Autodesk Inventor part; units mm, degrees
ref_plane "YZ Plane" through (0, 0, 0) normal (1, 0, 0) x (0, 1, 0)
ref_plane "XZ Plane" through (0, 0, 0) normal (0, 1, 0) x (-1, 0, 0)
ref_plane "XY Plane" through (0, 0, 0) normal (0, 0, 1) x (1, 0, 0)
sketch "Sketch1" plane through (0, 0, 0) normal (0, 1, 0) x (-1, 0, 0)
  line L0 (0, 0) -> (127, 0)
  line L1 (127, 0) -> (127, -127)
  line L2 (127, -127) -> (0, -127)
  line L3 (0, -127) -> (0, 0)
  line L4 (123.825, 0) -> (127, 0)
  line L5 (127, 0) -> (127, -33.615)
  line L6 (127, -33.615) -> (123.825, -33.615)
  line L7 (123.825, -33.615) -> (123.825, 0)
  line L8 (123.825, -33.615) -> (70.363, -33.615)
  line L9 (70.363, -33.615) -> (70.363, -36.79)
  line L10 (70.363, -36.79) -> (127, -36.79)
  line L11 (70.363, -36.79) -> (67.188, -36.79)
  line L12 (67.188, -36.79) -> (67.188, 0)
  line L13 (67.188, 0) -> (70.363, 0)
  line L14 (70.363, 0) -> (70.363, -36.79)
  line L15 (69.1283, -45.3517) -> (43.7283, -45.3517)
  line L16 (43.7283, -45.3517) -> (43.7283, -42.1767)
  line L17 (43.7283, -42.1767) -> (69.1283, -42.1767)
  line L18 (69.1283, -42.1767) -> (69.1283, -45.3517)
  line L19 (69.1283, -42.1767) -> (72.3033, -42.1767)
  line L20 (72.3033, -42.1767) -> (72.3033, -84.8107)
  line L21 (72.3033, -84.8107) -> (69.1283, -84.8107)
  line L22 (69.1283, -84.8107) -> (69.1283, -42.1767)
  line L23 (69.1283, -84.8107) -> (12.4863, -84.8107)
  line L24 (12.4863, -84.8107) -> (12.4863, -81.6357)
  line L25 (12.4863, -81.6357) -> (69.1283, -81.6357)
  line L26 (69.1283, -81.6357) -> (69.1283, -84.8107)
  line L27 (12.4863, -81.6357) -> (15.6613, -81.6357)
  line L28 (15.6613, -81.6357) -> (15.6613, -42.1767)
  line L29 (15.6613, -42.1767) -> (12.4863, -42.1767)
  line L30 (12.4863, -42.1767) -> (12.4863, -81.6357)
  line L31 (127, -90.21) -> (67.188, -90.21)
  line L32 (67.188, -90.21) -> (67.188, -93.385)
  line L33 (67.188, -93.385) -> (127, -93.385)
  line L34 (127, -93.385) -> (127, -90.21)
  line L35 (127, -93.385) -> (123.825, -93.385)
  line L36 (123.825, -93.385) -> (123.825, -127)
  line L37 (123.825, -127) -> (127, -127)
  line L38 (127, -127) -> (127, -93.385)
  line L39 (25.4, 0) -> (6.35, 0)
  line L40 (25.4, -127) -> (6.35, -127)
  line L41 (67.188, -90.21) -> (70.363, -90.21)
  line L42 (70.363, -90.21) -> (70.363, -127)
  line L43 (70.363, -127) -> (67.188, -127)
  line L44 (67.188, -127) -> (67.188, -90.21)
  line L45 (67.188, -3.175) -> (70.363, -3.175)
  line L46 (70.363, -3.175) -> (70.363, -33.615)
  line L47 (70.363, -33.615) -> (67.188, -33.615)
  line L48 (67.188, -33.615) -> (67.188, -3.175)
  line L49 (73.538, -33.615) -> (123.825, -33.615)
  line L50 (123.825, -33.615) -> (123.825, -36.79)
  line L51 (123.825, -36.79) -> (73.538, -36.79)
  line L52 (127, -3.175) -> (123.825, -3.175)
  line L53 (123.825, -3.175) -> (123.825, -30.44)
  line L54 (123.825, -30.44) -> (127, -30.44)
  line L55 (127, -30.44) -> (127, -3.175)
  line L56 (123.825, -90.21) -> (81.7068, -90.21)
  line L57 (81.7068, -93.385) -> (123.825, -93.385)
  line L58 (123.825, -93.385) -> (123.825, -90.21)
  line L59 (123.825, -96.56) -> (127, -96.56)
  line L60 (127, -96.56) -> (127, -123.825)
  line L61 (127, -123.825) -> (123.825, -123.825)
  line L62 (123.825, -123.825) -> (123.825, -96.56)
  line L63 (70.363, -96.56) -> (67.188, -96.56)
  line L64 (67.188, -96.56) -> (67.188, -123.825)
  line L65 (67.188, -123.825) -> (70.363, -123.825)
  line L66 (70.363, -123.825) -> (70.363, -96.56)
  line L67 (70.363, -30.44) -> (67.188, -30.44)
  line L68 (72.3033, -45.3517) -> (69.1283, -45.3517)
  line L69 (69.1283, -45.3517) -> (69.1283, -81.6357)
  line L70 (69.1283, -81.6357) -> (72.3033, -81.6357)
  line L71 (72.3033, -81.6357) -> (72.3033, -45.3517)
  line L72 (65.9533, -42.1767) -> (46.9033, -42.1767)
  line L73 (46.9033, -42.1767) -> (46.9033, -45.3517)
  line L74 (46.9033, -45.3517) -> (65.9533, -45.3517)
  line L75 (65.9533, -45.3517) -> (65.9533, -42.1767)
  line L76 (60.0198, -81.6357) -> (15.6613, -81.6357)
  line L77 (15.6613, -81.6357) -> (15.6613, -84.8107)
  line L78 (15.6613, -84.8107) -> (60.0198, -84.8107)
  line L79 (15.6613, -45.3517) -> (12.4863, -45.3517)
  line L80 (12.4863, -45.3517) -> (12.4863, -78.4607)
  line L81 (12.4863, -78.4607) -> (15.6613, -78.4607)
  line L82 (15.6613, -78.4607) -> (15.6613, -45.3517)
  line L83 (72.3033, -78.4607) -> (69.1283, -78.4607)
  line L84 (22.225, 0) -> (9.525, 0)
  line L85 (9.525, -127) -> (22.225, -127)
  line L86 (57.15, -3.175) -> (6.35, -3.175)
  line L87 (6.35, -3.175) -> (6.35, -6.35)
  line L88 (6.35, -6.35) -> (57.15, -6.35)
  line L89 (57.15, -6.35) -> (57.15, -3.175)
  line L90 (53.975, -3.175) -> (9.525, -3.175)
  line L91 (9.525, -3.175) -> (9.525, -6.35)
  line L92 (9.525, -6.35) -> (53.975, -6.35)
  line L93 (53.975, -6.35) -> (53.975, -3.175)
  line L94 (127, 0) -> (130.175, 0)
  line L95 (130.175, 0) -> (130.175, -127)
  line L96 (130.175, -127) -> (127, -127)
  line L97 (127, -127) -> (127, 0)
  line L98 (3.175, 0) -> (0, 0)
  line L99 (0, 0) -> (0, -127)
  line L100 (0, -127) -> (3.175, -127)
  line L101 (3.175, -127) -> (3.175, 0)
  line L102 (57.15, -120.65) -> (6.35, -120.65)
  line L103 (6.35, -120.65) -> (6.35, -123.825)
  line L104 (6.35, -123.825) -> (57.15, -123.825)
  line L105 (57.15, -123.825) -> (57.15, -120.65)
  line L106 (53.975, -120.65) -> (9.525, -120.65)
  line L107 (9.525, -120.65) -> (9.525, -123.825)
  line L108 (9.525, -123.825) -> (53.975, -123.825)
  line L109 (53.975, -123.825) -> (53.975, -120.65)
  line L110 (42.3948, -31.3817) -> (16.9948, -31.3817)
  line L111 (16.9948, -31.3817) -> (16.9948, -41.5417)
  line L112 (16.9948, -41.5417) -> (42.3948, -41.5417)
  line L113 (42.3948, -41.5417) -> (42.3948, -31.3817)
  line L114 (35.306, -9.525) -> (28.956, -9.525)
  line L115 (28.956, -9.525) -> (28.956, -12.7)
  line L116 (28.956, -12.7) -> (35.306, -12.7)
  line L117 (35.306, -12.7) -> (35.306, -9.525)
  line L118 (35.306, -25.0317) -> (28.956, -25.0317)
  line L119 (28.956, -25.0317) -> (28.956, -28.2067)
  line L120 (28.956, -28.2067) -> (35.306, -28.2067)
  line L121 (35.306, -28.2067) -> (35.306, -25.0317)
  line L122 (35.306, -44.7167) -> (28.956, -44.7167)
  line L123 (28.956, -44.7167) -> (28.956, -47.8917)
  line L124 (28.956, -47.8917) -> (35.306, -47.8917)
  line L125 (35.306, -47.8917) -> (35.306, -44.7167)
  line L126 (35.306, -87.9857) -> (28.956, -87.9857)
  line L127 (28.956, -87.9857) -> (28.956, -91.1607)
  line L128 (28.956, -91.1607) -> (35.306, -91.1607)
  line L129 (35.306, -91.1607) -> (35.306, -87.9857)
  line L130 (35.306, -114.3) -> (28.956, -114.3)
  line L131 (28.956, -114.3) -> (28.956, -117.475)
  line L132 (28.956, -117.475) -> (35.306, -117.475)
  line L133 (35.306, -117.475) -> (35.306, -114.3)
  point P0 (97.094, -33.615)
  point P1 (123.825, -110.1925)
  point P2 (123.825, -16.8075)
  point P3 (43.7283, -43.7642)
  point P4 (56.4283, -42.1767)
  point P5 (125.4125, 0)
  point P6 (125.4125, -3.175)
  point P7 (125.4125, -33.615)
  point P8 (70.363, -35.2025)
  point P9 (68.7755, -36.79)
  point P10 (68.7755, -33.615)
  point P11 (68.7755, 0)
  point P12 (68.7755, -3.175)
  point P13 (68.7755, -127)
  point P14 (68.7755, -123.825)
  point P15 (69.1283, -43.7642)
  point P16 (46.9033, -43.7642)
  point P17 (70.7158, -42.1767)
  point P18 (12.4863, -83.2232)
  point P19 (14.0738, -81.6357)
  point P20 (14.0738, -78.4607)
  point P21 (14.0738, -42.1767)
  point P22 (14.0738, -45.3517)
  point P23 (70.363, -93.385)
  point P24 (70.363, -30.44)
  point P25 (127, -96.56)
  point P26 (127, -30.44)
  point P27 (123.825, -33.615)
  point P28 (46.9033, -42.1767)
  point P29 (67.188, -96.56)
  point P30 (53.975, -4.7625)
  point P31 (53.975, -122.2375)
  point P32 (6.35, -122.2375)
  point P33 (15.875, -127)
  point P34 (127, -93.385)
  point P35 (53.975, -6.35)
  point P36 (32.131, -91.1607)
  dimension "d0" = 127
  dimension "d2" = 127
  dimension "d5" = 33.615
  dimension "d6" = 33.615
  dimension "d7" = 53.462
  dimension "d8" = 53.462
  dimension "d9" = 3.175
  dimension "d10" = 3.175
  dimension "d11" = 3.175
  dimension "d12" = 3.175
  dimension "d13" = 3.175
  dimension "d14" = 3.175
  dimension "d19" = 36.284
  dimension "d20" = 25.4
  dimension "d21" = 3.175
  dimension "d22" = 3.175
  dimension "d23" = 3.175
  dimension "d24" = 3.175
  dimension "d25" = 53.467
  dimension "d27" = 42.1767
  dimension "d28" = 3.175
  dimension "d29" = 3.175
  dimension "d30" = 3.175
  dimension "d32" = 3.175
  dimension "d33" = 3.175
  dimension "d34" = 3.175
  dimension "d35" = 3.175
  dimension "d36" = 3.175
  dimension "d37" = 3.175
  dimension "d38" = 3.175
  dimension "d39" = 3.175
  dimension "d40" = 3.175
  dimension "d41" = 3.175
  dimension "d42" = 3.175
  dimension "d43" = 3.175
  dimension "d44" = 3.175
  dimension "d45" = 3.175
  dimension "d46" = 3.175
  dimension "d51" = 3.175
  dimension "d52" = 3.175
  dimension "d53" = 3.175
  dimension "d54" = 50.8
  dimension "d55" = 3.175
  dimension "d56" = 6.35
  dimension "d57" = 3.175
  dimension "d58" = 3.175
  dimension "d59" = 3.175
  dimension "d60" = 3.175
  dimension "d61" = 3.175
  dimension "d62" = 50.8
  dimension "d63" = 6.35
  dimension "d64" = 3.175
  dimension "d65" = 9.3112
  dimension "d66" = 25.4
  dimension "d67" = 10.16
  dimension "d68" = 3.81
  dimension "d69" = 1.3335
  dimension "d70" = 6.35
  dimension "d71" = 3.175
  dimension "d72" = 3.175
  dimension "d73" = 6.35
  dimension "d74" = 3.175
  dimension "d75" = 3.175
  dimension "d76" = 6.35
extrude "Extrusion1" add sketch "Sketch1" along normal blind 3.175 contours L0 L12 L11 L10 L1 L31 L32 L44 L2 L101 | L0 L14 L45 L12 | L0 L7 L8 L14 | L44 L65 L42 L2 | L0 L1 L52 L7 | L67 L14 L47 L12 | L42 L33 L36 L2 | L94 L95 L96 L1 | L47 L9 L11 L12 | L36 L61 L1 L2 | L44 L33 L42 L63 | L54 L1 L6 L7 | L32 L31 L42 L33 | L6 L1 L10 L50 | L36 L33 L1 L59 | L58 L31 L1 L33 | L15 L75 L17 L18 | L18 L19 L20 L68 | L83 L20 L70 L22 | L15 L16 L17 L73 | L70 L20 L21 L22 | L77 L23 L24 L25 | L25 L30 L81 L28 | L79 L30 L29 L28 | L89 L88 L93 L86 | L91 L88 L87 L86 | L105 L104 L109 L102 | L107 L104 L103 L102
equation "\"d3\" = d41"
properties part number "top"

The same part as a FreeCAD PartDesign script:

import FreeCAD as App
import Part
import Sketcher

V = App.Vector
Q = App.Units.Quantity


def add_polygon(sketch, points):
    """Adds a closed chain of lines whose ends are joined by coincident constraints."""
    first, n = sketch.GeometryCount, len(points)
    for a, b in zip(points, points[1:] + points[:1]):
        sketch.addGeometry(Part.LineSegment(App.Vector(*a, 0), App.Vector(*b, 0)), False)
    for i in range(n):
        sketch.addConstraint(Sketcher.Constraint("Coincident", first + i, 2, first + (i + 1) % n, 1))

doc = App.newDocument("Part")
body = doc.addObject("PartDesign::Body", "Body")

# Sketch on XZ plane
sketch1 = body.newObject("Sketcher::SketchObject", "Sketch")
sketch1.AttachmentSupport = (doc.getObject("XZ_Plane"), [""])
sketch1.MapMode = "FlatFace"
add_polygon(sketch1, [(-3.175, 0), (-3.175, -127), (-130.175, -127), (-130.175, 0)])  # lines 0-3
add_polygon(sketch1, [(-67.188, -30.44), (-67.188, -3.175), (-70.363, -3.175), (-70.363, -30.44)])  # lines 4-7
add_polygon(sketch1, [(-70.363, -36.79), (-70.363, -33.615), (-123.825, -33.615), (-123.825, -36.79)])  # lines 8-11
add_polygon(sketch1, [(-123.825, -90.21), (-123.825, -93.385), (-70.363, -93.385), (-70.363, -90.21)])  # lines 12-15
add_polygon(sketch1, [(-67.188, -123.825), (-67.188, -96.56), (-70.363, -96.56), (-70.363, -123.825)])  # lines 16-19
add_polygon(sketch1, [(-9.525, -120.65), (-53.975, -120.65), (-53.975, -123.825), (-9.525, -123.825)])  # lines 20-23
add_polygon(sketch1, [(-28.956, -114.3), (-35.306, -114.3), (-35.306, -117.475), (-28.956, -117.475)])  # lines 24-27
add_polygon(sketch1, [(-28.956, -87.9857), (-35.306, -87.9857), (-35.306, -91.1607), (-28.956, -91.1607)])  # lines 28-31
add_polygon(sketch1, [(-28.956, -44.7167), (-35.306, -44.7167), (-35.306, -47.8917), (-28.956, -47.8917)])  # lines 32-35
add_polygon(sketch1, [(-16.9948, -31.3817), (-42.3948, -31.3817), (-42.3948, -41.5417), (-16.9948, -41.5417)])  # lines 36-39
add_polygon(sketch1, [(-69.1283, -78.4607), (-69.1283, -45.3517), (-72.3033, -45.3517), (-72.3033, -78.4607)])  # lines 40-43
add_polygon(sketch1, [(-69.1283, -81.6357), (-69.1283, -84.8107), (-15.6613, -84.8107), (-15.6613, -81.6357)])  # lines 44-47
add_polygon(sketch1, [(-15.6613, -45.3517), (-15.6613, -78.4607), (-12.4863, -78.4607), (-12.4863, -45.3517)])  # lines 48-51
add_polygon(sketch1, [(-46.9033, -42.1767), (-65.9533, -42.1767), (-65.9533, -45.3517), (-46.9033, -45.3517)])  # lines 52-55
add_polygon(sketch1, [(-28.956, -25.0317), (-35.306, -25.0317), (-35.306, -28.2067), (-28.956, -28.2067)])  # lines 56-59
add_polygon(sketch1, [(-28.956, -9.525), (-35.306, -9.525), (-35.306, -12.7), (-28.956, -12.7)])  # lines 60-63
add_polygon(sketch1, [(-9.525, -3.175), (-53.975, -3.175), (-53.975, -6.35), (-9.525, -6.35)])  # lines 64-67
add_polygon(sketch1, [(-127, -96.56), (-127, -123.825), (-123.825, -123.825), (-123.825, -96.56)])  # lines 68-71
add_polygon(sketch1, [(-127, -3.175), (-127, -30.44), (-123.825, -30.44), (-123.825, -3.175)])  # lines 72-75
sketch1.addConstraint([
    Sketcher.Constraint("Vertical", 0),
    Sketcher.Constraint("Horizontal", 1),
    Sketcher.Constraint("Vertical", 2),
    Sketcher.Constraint("Horizontal", 3),
    Sketcher.Constraint("Vertical", 4),
    Sketcher.Constraint("Horizontal", 5),
    Sketcher.Constraint("Vertical", 6),
    Sketcher.Constraint("Horizontal", 7),
    Sketcher.Constraint("Vertical", 8),
    Sketcher.Constraint("Horizontal", 9),
    Sketcher.Constraint("Vertical", 10),
    Sketcher.Constraint("Horizontal", 11),
    Sketcher.Constraint("Vertical", 12),
    Sketcher.Constraint("Horizontal", 13),
    Sketcher.Constraint("Vertical", 14),
    Sketcher.Constraint("Horizontal", 15),
    Sketcher.Constraint("Vertical", 16),
    Sketcher.Constraint("Horizontal", 17),
    Sketcher.Constraint("Vertical", 18),
    Sketcher.Constraint("Horizontal", 19),
    Sketcher.Constraint("Horizontal", 20),
    Sketcher.Constraint("Vertical", 21),
    Sketcher.Constraint("Horizontal", 22),
    Sketcher.Constraint("Vertical", 23),
    Sketcher.Constraint("Horizontal", 24),
    Sketcher.Constraint("Vertical", 25),
    Sketcher.Constraint("Horizontal", 26),
    Sketcher.Constraint("Vertical", 27),
    Sketcher.Constraint("Horizontal", 28),
    Sketcher.Constraint("Vertical", 29),
    Sketcher.Constraint("Horizontal", 30),
    Sketcher.Constraint("Vertical", 31),
    Sketcher.Constraint("Horizontal", 32),
    Sketcher.Constraint("Vertical", 33),
    Sketcher.Constraint("Horizontal", 34),
    Sketcher.Constraint("Vertical", 35),
    Sketcher.Constraint("Horizontal", 36),
    Sketcher.Constraint("Vertical", 37),
    Sketcher.Constraint("Horizontal", 38),
    Sketcher.Constraint("Vertical", 39),
    Sketcher.Constraint("Vertical", 40),
    Sketcher.Constraint("Horizontal", 41),
    Sketcher.Constraint("Vertical", 42),
    Sketcher.Constraint("Horizontal", 43),
    Sketcher.Constraint("Vertical", 44),
    Sketcher.Constraint("Horizontal", 45),
    Sketcher.Constraint("Vertical", 46),
    Sketcher.Constraint("Horizontal", 47),
    Sketcher.Constraint("Vertical", 48),
    Sketcher.Constraint("Horizontal", 49),
    Sketcher.Constraint("Vertical", 50),
    Sketcher.Constraint("Horizontal", 51),
    Sketcher.Constraint("Horizontal", 52),
    Sketcher.Constraint("Vertical", 53),
    Sketcher.Constraint("Horizontal", 54),
    Sketcher.Constraint("Vertical", 55),
    Sketcher.Constraint("Horizontal", 56),
    Sketcher.Constraint("Vertical", 57),
    Sketcher.Constraint("Horizontal", 58),
    Sketcher.Constraint("Vertical", 59),
    Sketcher.Constraint("Horizontal", 60),
    Sketcher.Constraint("Vertical", 61),
    Sketcher.Constraint("Horizontal", 62),
    Sketcher.Constraint("Vertical", 63),
    Sketcher.Constraint("Horizontal", 64),
    Sketcher.Constraint("Vertical", 65),
    Sketcher.Constraint("Horizontal", 66),
    Sketcher.Constraint("Vertical", 67),
    Sketcher.Constraint("Vertical", 68),
    Sketcher.Constraint("Horizontal", 69),
    Sketcher.Constraint("Vertical", 70),
    Sketcher.Constraint("Horizontal", 71),
    Sketcher.Constraint("Vertical", 72),
    Sketcher.Constraint("Horizontal", 73),
    Sketcher.Constraint("Vertical", 74),
    Sketcher.Constraint("Horizontal", 75),
    Sketcher.Constraint("PointOnObject", 2, 2, -1),
    Sketcher.Constraint("Horizontal", 19, 2, 21, 2),
    Sketcher.Constraint("Horizontal", 43, 2, 48, 2),
    Sketcher.Constraint("Horizontal", 41, 2, 50, 2),
    Sketcher.Constraint("Horizontal", 51, 2, 53, 2),
    Sketcher.Constraint("Horizontal", 5, 2, 64, 2),
    Sketcher.Constraint("Horizontal", 22, 2, 68, 2),
    Sketcher.Constraint("Horizontal", 17, 2, 70, 2),
    Sketcher.Constraint("Horizontal", 7, 2, 72, 2),
    Sketcher.Constraint("Horizontal", 67, 2, 74, 2),
    Sketcher.Constraint("Vertical", 6, 2, 8, 2),
    Sketcher.Constraint("Vertical", 10, 2, 12, 2),
    Sketcher.Constraint("Vertical", 11, 2, 13, 2),
    Sketcher.Constraint("Vertical", 7, 2, 16, 2),
    Sketcher.Constraint("Vertical", 14, 2, 17, 2),
    Sketcher.Constraint("Vertical", 25, 2, 28, 2),
    Sketcher.Constraint("Vertical", 27, 2, 30, 2),
    Sketcher.Constraint("Vertical", 29, 2, 32, 2),
    Sketcher.Constraint("Vertical", 31, 2, 34, 2),
    Sketcher.Constraint("Vertical", 43, 2, 44, 2),
    Sketcher.Constraint("Vertical", 46, 2, 48, 2),
    Sketcher.Constraint("Vertical", 33, 2, 56, 2),
    Sketcher.Constraint("Vertical", 35, 2, 58, 2),
    Sketcher.Constraint("Vertical", 57, 2, 60, 2),
    Sketcher.Constraint("Vertical", 59, 2, 62, 2),
    Sketcher.Constraint("Vertical", 21, 2, 64, 2),
    Sketcher.Constraint("Vertical", 23, 2, 66, 2),
    Sketcher.Constraint("Vertical", 15, 2, 69, 2),
    Sketcher.Constraint("Vertical", 71, 2, 72, 2),
    Sketcher.Constraint("Vertical", 70, 2, 73, 2),
    Sketcher.Constraint("Equal", 19, 41),
    Sketcher.Constraint("Equal", 43, 49),
    Sketcher.Constraint("Equal", 51, 69),
    Sketcher.Constraint("Equal", 3, 0),
    Sketcher.Constraint("Equal", 75, 8),
    Sketcher.Constraint("Equal", 10, 12),
    Sketcher.Constraint("Equal", 6, 16),
    Sketcher.Constraint("Equal", 14, 21),
    Sketcher.Constraint("Equal", 23, 25),
    Sketcher.Constraint("Equal", 27, 29),
    Sketcher.Constraint("Equal", 31, 33),
    Sketcher.Constraint("Equal", 35, 44),
    Sketcher.Constraint("Equal", 46, 53),
    Sketcher.Constraint("Equal", 55, 57),
    Sketcher.Constraint("Equal", 59, 61),
    Sketcher.Constraint("Equal", 63, 65),
    Sketcher.Constraint("DistanceX", 1, 2, 1, 1, Q("5 in")),
    Sketcher.Constraint("DistanceX", 36, 2, 36, 1, Q("1 in")),
    Sketcher.Constraint("DistanceY", 37, 2, 37, 1, Q("0.4 in")),
    Sketcher.Constraint("DistanceX", 68, 2, -1, 1, Q("5 in")),
    Sketcher.Constraint("DistanceX", 24, 2, 24, 1, Q("0.25 in")),
    Sketcher.Constraint("DistanceX", 5, 2, 5, 1, Q("0.125 in")),
    Sketcher.Constraint("DistanceX", 45, 1, 45, 2, Q("2.105 in")),
    Sketcher.Constraint("DistanceY", 65, 2, -1, 1, Q("0.25 in")),
    Sketcher.Constraint("DistanceX", 9, 2, 9, 1, Q("2.1048 in")),
    Sketcher.Constraint("DistanceX", 0, 2, -1, 1, Q("0.125 in")),
    Sketcher.Constraint("DistanceX", 20, 2, 20, 1, Q("1.75 in")),
    Sketcher.Constraint("DistanceX", 52, 2, 52, 1, Q("0.75 in")),
    Sketcher.Constraint("DistanceY", 52, 2, -1, 1, Q("1.6605 in")),
    Sketcher.Constraint("DistanceY", 24, 2, -1, 1, Q("4.5 in")),
    Sketcher.Constraint("DistanceY", 61, 2, -1, 1, Q("0.5 in")),
    Sketcher.Constraint("DistanceY", 8, 2, -1, 1, 33.615),
    Sketcher.Constraint("DistanceY", 20, 2, -1, 1, Q("4.75 in")),
    Sketcher.Constraint("DistanceX", 24, 2, -1, 1, Q("1.39 in")),
    Sketcher.Constraint("DistanceY", 40, 1, 40, 2, Q("1.3035 in")),
    Sketcher.Constraint("DistanceX", 20, 2, -1, 1, Q("2.125 in")),
    Sketcher.Constraint("DistanceY", 28, 2, -1, 1, Q("3.464 in")),
    Sketcher.Constraint("DistanceY", 44, 2, -1, 1, Q("3.339 in")),
    Sketcher.Constraint("DistanceY", 4, 1, 4, 2, 27.265),
    Sketcher.Constraint("DistanceY", 32, 2, -1, 1, Q("1.7605 in")),
    Sketcher.Constraint("DistanceY", 36, 2, -1, 1, Q("1.2355 in")),
    Sketcher.Constraint("DistanceY", 56, 2, -1, 1, Q("0.9855 in")),
    Sketcher.Constraint("DistanceY", 12, 2, -1, 1, 93.385),
    Sketcher.Constraint("DistanceX", 36, 2, -1, 1, 42.3948),
    Sketcher.Constraint("DistanceX", 40, 2, -1, 1, 69.1283),
    Sketcher.Constraint("DistanceX", 52, 2, -1, 1, 65.9533),
])
pad1 = body.newObject("PartDesign::Pad", "Pad")
pad1.Profile = sketch1
pad1.Length = Q("0.125 in")
pad1.Reversed = True

doc.recompute()
